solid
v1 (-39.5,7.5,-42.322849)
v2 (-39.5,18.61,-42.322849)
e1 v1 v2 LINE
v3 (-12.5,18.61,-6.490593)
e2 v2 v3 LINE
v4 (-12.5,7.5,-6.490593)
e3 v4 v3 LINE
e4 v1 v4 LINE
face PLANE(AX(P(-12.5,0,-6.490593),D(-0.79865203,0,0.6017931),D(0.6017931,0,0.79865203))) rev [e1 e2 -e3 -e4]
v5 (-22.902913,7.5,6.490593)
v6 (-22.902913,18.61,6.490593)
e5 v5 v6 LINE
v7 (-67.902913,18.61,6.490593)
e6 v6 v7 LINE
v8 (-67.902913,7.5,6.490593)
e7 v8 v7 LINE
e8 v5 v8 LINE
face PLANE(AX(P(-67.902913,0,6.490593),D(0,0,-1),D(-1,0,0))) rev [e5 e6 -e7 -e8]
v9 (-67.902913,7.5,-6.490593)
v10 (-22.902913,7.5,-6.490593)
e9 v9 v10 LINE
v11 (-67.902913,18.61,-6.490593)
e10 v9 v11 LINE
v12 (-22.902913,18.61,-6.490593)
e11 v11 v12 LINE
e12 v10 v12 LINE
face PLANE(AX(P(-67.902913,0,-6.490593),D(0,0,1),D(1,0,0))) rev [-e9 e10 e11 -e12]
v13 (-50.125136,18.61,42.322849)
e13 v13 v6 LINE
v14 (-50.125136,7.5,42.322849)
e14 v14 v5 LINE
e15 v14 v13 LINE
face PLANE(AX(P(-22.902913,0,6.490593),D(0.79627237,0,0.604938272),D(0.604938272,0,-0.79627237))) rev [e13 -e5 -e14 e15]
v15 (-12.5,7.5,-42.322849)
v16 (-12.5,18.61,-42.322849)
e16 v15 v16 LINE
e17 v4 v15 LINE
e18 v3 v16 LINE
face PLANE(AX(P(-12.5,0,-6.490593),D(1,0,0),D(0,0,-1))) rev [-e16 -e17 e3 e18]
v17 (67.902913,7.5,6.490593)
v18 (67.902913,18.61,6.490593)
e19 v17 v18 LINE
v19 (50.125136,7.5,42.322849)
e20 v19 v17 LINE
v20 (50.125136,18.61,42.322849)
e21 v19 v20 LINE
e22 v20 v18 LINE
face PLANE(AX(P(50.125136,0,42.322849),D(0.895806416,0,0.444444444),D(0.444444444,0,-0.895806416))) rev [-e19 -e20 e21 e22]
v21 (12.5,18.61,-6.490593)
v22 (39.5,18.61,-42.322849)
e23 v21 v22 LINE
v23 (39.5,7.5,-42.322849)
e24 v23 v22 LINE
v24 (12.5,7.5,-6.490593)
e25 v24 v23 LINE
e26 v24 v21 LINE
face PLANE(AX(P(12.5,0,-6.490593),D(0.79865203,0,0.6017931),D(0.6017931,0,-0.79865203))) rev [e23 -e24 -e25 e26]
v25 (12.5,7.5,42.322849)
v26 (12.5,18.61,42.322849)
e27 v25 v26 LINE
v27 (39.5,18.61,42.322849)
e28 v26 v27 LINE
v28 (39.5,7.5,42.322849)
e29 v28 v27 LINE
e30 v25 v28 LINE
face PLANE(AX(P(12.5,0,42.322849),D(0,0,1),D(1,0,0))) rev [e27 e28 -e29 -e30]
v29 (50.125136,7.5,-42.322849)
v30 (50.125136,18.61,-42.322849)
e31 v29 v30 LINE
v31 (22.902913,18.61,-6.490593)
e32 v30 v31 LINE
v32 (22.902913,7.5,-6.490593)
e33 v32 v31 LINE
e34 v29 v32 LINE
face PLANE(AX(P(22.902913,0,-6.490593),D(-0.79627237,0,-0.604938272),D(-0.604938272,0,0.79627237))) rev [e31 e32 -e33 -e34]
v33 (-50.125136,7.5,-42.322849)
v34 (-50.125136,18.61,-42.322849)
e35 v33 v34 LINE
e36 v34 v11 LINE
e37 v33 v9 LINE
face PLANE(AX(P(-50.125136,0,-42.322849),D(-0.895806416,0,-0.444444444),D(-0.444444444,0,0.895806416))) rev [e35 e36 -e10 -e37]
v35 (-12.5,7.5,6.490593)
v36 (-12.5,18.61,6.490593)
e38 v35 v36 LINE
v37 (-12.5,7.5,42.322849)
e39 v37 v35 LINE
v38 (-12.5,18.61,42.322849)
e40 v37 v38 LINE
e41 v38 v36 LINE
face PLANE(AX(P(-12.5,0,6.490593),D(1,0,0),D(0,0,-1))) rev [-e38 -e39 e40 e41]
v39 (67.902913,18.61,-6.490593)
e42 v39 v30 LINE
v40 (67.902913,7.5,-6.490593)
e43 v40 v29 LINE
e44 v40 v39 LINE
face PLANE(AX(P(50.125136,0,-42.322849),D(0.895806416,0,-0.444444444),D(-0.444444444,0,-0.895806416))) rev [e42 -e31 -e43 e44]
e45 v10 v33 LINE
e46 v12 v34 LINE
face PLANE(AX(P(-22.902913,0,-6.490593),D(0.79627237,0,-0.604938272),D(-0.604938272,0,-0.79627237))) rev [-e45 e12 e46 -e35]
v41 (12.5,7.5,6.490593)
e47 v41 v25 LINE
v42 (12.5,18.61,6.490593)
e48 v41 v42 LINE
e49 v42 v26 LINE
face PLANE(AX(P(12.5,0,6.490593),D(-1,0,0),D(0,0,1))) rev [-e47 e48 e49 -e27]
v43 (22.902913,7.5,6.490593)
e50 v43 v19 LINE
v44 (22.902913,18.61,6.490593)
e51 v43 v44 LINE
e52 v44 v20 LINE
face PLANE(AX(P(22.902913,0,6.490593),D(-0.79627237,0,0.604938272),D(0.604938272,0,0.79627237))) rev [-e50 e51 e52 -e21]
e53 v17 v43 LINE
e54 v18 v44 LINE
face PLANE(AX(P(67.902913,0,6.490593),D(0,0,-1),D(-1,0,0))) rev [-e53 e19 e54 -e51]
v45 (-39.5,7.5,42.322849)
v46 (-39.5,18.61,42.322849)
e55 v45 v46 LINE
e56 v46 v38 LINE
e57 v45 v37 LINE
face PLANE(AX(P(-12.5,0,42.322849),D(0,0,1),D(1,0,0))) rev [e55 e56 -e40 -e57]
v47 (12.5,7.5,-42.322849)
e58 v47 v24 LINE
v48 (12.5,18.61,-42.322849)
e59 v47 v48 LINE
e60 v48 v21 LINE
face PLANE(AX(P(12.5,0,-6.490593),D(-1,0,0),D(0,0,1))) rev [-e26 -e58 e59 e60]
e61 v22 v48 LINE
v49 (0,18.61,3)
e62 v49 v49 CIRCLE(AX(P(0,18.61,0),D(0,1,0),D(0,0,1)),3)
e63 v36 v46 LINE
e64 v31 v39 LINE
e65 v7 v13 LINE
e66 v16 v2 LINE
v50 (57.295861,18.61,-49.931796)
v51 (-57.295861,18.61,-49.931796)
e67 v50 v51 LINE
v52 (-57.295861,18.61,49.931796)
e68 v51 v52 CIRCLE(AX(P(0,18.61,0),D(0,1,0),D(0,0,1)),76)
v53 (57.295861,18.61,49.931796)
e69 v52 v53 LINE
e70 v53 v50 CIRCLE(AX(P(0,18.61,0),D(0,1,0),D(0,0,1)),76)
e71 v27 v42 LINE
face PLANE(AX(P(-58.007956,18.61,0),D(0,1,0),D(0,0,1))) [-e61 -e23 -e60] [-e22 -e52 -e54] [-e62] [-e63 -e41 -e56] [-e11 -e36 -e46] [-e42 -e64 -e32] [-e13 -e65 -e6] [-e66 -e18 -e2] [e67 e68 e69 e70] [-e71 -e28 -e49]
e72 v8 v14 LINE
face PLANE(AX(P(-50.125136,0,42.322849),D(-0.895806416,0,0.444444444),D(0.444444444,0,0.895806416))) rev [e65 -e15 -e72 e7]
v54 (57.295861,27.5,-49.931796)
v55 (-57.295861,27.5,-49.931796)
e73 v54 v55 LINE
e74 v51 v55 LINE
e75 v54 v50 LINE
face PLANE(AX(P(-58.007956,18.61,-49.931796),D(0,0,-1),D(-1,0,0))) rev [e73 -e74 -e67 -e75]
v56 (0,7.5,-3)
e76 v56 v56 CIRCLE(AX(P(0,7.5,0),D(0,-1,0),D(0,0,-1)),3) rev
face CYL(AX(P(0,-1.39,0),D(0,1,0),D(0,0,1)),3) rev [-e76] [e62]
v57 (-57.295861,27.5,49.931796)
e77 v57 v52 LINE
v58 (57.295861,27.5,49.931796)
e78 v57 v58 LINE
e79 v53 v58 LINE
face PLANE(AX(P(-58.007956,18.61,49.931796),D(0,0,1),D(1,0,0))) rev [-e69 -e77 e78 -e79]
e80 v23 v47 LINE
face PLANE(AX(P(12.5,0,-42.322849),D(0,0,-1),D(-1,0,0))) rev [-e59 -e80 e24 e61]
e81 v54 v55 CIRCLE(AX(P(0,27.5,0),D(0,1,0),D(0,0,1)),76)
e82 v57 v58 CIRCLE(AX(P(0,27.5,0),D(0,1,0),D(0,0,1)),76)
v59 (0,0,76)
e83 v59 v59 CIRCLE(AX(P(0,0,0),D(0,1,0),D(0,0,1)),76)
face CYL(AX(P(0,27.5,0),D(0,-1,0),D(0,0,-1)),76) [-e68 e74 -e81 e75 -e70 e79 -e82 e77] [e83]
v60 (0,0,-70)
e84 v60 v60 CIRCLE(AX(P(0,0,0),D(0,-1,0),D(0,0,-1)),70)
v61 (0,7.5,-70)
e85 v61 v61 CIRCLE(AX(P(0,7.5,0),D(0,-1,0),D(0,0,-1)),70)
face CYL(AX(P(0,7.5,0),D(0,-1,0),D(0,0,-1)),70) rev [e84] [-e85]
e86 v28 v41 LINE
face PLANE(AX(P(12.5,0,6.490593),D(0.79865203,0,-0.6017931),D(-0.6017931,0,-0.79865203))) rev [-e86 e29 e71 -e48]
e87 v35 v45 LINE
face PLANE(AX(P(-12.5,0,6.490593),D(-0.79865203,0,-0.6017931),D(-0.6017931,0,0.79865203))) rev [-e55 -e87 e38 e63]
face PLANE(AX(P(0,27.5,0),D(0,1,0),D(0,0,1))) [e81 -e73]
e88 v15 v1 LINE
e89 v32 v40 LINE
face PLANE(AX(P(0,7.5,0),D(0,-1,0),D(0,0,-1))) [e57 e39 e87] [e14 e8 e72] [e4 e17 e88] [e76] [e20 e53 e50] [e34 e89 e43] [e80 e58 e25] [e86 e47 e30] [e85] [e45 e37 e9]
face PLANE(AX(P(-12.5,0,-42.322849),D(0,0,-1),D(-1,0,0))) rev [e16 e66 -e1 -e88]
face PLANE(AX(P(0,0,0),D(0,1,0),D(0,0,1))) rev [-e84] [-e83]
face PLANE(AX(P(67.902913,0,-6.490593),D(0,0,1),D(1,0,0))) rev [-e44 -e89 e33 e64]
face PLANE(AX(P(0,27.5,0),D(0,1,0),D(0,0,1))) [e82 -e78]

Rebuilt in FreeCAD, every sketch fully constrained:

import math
import FreeCAD as App
import Part
import Sketcher
from FreeCAD import Vector


def add_polygon(sketch, points):
    """Adds a closed chain of lines whose ends are joined by coincident constraints."""
    first, n = sketch.GeometryCount, len(points)
    for a, b in zip(points, points[1:] + points[:1]):
        sketch.addGeometry(Part.LineSegment(App.Vector(*a, 0), App.Vector(*b, 0)), False)
    for i in range(n):
        sketch.addConstraint(Sketcher.Constraint("Coincident", first + i, 2, first + (i + 1) % n, 1))

doc = App.newDocument("Part")
params = doc.addObject("Spreadsheet::Sheet", "Params")
for row, (alias, value) in enumerate([
    ("sketch1_diameter", "152 mm"),
    ("pad1_length", "27.5 mm"),
    ("pocket1_length", "8.89 mm"),
    ("sketch3_diameter", "6 mm"),
    ("pocket2_length", "20 mm"),
    ("sketch4_width", "45 mm"),
    ("sketch4_length", "40 mm"),
    ("sketch4_length2", "45 mm"),
    ("sketch5_width", "27 mm"),
    ("sketch6_diameter", "140 mm"),
    ("pocket5_length", "7.5 mm"),
], start=1):
    params.set(f"A{row}", alias)
    params.set(f"B{row}", "=" + value)
    params.setAlias(f"B{row}", alias)

body = doc.addObject("PartDesign::Body", "Body")

# Sketch on XZ plane
sketch1 = doc.addObject("Sketcher::SketchObject", "Sketch")
body.addObject(sketch1)
sketch1.AttachmentSupport = (doc.XZ_Plane, [""])
sketch1.MapMode = "FlatFace"
sketch1.addGeometry(Part.Circle(Vector(0, 0, 0), Vector(0, 0, 1), 76), False)
sketch1.addConstraint(Sketcher.Constraint("Coincident", 0, 3, -1, 1))
sketch1.addConstraint(Sketcher.Constraint("Diameter", 0, 152.0))
sketch1.setExpression("Constraints[1]", "Params.sketch1_diameter")
pad1 = doc.addObject("PartDesign::Pad", "Pad")
body.addObject(pad1)
pad1.Profile = sketch1
pad1.setExpression("Length", "Params.pad1_length")
pad1.Reversed = True

# Sketch on XZ plane
sketch2 = doc.addObject("Sketcher::SketchObject", "Sketch001")
body.addObject(sketch2)
sketch2.AttachmentSupport = (doc.XZ_Plane, [""])
sketch2.MapMode = "FlatFace"
sketch2.AttachmentOffset = App.Placement(Vector(0, 0, -27.5), App.Rotation())
sketch2.addGeometry(Part.LineSegment(Vector(58.007956, -49.931796, 0), Vector(-58.007956, -49.931796, 0)), False)
sketch2.addGeometry(Part.ArcOfCircle(Part.Circle(Vector(-58.007956, 0, 0), Vector(0, 0, 1), 49.931796), math.radians(90), math.radians(270)), False)
sketch2.addGeometry(Part.LineSegment(Vector(-58.007956, 49.931796, 0), Vector(58.007956, 49.931796, 0)), False)
sketch2.addGeometry(Part.ArcOfCircle(Part.Circle(Vector(58.007956, 0, 0), Vector(0, 0, 1), 49.931796), math.radians(-90), math.radians(90)), False)
sketch2.addConstraint(Sketcher.Constraint("Tangent", 0, 2, 1, 2))
sketch2.addConstraint(Sketcher.Constraint("Tangent", 1, 1, 2, 1))
sketch2.addConstraint(Sketcher.Constraint("Tangent", 2, 2, 3, 2))
sketch2.addConstraint(Sketcher.Constraint("Tangent", 3, 1, 0, 1))
sketch2.addConstraint(Sketcher.Constraint("Horizontal", 0))
sketch2.addConstraint(Sketcher.Constraint("Horizontal", 2))
sketch2.addConstraint(Sketcher.Constraint("Symmetric", 1, 3, 3, 3, -1, 1))
sketch2.addConstraint(Sketcher.Constraint("Radius", 1, 49.931796))
sketch2.addConstraint(Sketcher.Constraint("DistanceX", 0, 2, 0, 1, 116.015911))
pocket1 = doc.addObject("PartDesign::Pocket", "Pocket")
body.addObject(pocket1)
pocket1.Profile = sketch2
pocket1.setExpression("Length", "Params.pocket1_length")
pocket1.Reversed = True

# Sketch on XZ plane
sketch3 = doc.addObject("Sketcher::SketchObject", "Sketch002")
body.addObject(sketch3)
sketch3.AttachmentSupport = (doc.XZ_Plane, [""])
sketch3.MapMode = "FlatFace"
sketch3.AttachmentOffset = App.Placement(Vector(0, 0, -18.61), App.Rotation())
sketch3.addGeometry(Part.Circle(Vector(0, 0, 0), Vector(0, 0, 1), 3), False)
sketch3.addConstraint(Sketcher.Constraint("Coincident", 0, 3, -1, 1))
sketch3.addConstraint(Sketcher.Constraint("Diameter", 0, 6.0))
sketch3.setExpression("Constraints[1]", "Params.sketch3_diameter")
pocket2 = doc.addObject("PartDesign::Pocket", "Pocket001")
body.addObject(pocket2)
pocket2.Profile = sketch3
pocket2.setExpression("Length", "Params.pocket2_length")
pocket2.Reversed = True

# Sketch on XZ plane
sketch4 = doc.addObject("Sketcher::SketchObject", "Sketch003")
body.addObject(sketch4)
sketch4.AttachmentSupport = (doc.XZ_Plane, [""])
sketch4.MapMode = "FlatFace"
sketch4.AttachmentOffset = App.Placement(Vector(0, 0, -18.61), App.Rotation())
add_polygon(sketch4, [(-50.125136, -42.322849), (-67.902913, -6.490593), (-22.902913, -6.490593)])  # lines 0-2
add_polygon(sketch4, [(22.902913, -6.490593), (67.902913, -6.490593), (50.125136, -42.322849)])  # lines 3-5
add_polygon(sketch4, [(50.125136, 42.322849), (67.902913, 6.490593), (22.902913, 6.490593)])  # lines 6-8
add_polygon(sketch4, [(-22.902913, 6.490593), (-67.902913, 6.490593), (-50.125136, 42.322849)])  # lines 9-11
sketch4.addConstraint(Sketcher.Constraint("Horizontal", 1))
sketch4.addConstraint(Sketcher.Constraint("Horizontal", 3))
sketch4.addConstraint(Sketcher.Constraint("Horizontal", 7))
sketch4.addConstraint(Sketcher.Constraint("Horizontal", 9))
sketch4.addConstraint(Sketcher.Constraint("Symmetric", 0, 2, 6, 2, -1, 1))
sketch4.addConstraint(Sketcher.Constraint("Symmetric", 2, 2, 8, 2, -1, 1))
sketch4.addConstraint(Sketcher.Constraint("Symmetric", 3, 2, 9, 2, -1, 1))
sketch4.addConstraint(Sketcher.Constraint("Symmetric", 4, 2, 10, 2, -1, 1))
sketch4.addConstraint(Sketcher.Constraint("Symmetric", 0, 2, 3, 2, -2))
sketch4.addConstraint(Sketcher.Constraint("Symmetric", 2, 2, 4, 2, -2))
sketch4.addConstraint(Sketcher.Constraint("Parallel", 2, 8))
sketch4.addConstraint(Sketcher.Constraint("Parallel", 5, 11))
sketch4.addConstraint(Sketcher.Constraint("Vertical", 5, 2, 7, 2))
sketch4.addConstraint(Sketcher.Constraint("DistanceX", 1, 1, 1, 2, 45.0))
sketch4.addConstraint(Sketcher.Constraint("Distance", 0, 40.0))
sketch4.addConstraint(Sketcher.Constraint("Distance", 2, 45.0))
sketch4.addConstraint(Sketcher.Constraint("DistanceY", 4, 2, 8, 2, 84.645699))
sketch4.addConstraint(Sketcher.Constraint("DistanceX", 2, 2, 3, 2, 118.028049))
sketch4.setExpression("Constraints[25]", "Params.sketch4_width")
sketch4.setExpression("Constraints[26]", "Params.sketch4_length")
sketch4.setExpression("Constraints[27]", "Params.sketch4_length2")
pocket3 = doc.addObject("PartDesign::Pocket", "Pocket002")
body.addObject(pocket3)
pocket3.Profile = sketch4
pocket3.Type = "ThroughAll"
pocket3.Reversed = True

# Sketch on XZ plane
sketch5 = doc.addObject("Sketcher::SketchObject", "Sketch004")
body.addObject(sketch5)
sketch5.AttachmentSupport = (doc.XZ_Plane, [""])
sketch5.MapMode = "FlatFace"
sketch5.AttachmentOffset = App.Placement(Vector(0, 0, -18.61), App.Rotation())
add_polygon(sketch5, [(-12.5, -6.490593), (-12.5, -42.322849), (-39.5, -42.322849)])  # lines 0-2
add_polygon(sketch5, [(12.5, -6.490593), (39.5, -42.322849), (12.5, -42.322849)])  # lines 3-5
add_polygon(sketch5, [(12.5, 6.490593), (12.5, 42.322849), (39.5, 42.322849)])  # lines 6-8
add_polygon(sketch5, [(-12.5, 6.490593), (-39.5, 42.322849), (-12.5, 42.322849)])  # lines 9-11
sketch5.addConstraint(Sketcher.Constraint("Vertical", 0))
sketch5.addConstraint(Sketcher.Constraint("Horizontal", 1))
sketch5.addConstraint(Sketcher.Constraint("Horizontal", 4))
sketch5.addConstraint(Sketcher.Constraint("Vertical", 5))
sketch5.addConstraint(Sketcher.Constraint("Vertical", 6))
sketch5.addConstraint(Sketcher.Constraint("Horizontal", 7))
sketch5.addConstraint(Sketcher.Constraint("Horizontal", 10))
sketch5.addConstraint(Sketcher.Constraint("Vertical", 11))
sketch5.addConstraint(Sketcher.Constraint("Symmetric", 0, 2, 6, 2, -1, 1))
sketch5.addConstraint(Sketcher.Constraint("Symmetric", 3, 2, 9, 2, -1, 1))
sketch5.addConstraint(Sketcher.Constraint("Symmetric", 5, 2, 11, 2, -1, 1))
sketch5.addConstraint(Sketcher.Constraint("Symmetric", 1, 2, 3, 2, -2))
sketch5.addConstraint(Sketcher.Constraint("Symmetric", 2, 2, 5, 2, -2))
sketch5.addConstraint(Sketcher.Constraint("Parallel", 2, 8))
sketch5.addConstraint(Sketcher.Constraint("Horizontal", 8, 2, 11, 2))
sketch5.addConstraint(Sketcher.Constraint("DistanceX", 1, 2, 1, 1, 27.0))
sketch5.addConstraint(Sketcher.Constraint("DistanceX", 0, 2, 3, 2, 52.0))
sketch5.addConstraint(Sketcher.Constraint("DistanceY", 4, 2, 6, 2, 84.645699))
sketch5.addConstraint(Sketcher.Constraint("Distance", 2, 44.865918))
sketch5.setExpression("Constraints[27]", "Params.sketch5_width")
pocket4 = doc.addObject("PartDesign::Pocket", "Pocket003")
body.addObject(pocket4)
pocket4.Profile = sketch5
pocket4.Type = "ThroughAll"
pocket4.Reversed = True

# Sketch on XZ plane
sketch6 = doc.addObject("Sketcher::SketchObject", "Sketch005")
body.addObject(sketch6)
sketch6.AttachmentSupport = (doc.XZ_Plane, [""])
sketch6.MapMode = "FlatFace"
sketch6.addGeometry(Part.Circle(Vector(0, 0, 0), Vector(0, 0, 1), 70), False)
sketch6.addConstraint(Sketcher.Constraint("Coincident", 0, 3, -1, 1))
sketch6.addConstraint(Sketcher.Constraint("Diameter", 0, 140.0))
sketch6.setExpression("Constraints[1]", "Params.sketch6_diameter")
pocket5 = doc.addObject("PartDesign::Pocket", "Pocket004")
body.addObject(pocket5)
pocket5.Profile = sketch6
pocket5.setExpression("Length", "Params.pocket5_length")

doc.recompute()
